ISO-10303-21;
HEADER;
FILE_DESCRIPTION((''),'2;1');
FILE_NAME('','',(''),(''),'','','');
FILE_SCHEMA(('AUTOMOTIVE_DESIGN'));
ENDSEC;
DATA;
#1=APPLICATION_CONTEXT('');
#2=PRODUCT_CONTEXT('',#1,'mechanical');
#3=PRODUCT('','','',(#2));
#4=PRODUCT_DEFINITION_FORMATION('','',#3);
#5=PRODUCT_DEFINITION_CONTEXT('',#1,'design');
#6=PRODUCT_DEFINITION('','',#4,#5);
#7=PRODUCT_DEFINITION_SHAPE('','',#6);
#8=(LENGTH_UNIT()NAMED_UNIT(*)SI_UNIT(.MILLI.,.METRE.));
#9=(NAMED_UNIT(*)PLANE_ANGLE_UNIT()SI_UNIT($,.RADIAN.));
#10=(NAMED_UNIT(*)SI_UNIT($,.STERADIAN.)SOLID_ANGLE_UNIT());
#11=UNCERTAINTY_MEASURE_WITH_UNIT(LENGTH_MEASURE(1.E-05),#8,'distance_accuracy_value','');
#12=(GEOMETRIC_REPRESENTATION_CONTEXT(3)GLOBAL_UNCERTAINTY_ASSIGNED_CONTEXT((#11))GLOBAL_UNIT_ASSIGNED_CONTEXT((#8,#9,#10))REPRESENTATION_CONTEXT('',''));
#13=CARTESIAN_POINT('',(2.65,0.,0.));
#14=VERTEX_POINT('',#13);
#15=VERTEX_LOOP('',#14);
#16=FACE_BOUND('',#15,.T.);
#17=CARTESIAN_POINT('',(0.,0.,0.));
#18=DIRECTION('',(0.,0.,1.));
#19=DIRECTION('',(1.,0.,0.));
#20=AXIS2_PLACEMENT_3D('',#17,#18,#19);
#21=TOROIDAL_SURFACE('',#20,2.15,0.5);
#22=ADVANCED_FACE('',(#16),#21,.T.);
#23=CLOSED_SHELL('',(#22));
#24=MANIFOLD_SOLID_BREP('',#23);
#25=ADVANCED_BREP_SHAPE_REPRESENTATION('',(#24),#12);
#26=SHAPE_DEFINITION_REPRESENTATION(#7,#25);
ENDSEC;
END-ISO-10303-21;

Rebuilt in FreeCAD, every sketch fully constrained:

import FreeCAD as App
import Part
import Sketcher

V = App.Vector
Q = App.Units.Quantity

doc = App.newDocument("Part")
body = doc.addObject("PartDesign::Body", "Body")

# Sketch on XZ plane
sketch1 = body.newObject("Sketcher::SketchObject", "Sketch")
sketch1.AttachmentSupport = (doc.getObject("XZ_Plane"), [""])
sketch1.MapMode = "FlatFace"
sketch1.addGeometry(Part.Circle(V(2.1, 0, 0), V(0, 0, 1), 0.5), False)
sketch1.addConstraint(Sketcher.Constraint("PointOnObject", 0, 3, -1))
sketch1.addConstraint(Sketcher.Constraint("Diameter", 0, Q("1 mm")))
sketch1.addConstraint(Sketcher.Constraint("DistanceX", -1, 1, 0, 3, Q("2.15 mm")))
revolution = body.newObject("PartDesign::Revolution", "Revolution")
revolution.Profile = sketch1
revolution.ReferenceAxis = (sketch1, ["V_Axis"])
revolution.Angle = 360

doc.recompute()
